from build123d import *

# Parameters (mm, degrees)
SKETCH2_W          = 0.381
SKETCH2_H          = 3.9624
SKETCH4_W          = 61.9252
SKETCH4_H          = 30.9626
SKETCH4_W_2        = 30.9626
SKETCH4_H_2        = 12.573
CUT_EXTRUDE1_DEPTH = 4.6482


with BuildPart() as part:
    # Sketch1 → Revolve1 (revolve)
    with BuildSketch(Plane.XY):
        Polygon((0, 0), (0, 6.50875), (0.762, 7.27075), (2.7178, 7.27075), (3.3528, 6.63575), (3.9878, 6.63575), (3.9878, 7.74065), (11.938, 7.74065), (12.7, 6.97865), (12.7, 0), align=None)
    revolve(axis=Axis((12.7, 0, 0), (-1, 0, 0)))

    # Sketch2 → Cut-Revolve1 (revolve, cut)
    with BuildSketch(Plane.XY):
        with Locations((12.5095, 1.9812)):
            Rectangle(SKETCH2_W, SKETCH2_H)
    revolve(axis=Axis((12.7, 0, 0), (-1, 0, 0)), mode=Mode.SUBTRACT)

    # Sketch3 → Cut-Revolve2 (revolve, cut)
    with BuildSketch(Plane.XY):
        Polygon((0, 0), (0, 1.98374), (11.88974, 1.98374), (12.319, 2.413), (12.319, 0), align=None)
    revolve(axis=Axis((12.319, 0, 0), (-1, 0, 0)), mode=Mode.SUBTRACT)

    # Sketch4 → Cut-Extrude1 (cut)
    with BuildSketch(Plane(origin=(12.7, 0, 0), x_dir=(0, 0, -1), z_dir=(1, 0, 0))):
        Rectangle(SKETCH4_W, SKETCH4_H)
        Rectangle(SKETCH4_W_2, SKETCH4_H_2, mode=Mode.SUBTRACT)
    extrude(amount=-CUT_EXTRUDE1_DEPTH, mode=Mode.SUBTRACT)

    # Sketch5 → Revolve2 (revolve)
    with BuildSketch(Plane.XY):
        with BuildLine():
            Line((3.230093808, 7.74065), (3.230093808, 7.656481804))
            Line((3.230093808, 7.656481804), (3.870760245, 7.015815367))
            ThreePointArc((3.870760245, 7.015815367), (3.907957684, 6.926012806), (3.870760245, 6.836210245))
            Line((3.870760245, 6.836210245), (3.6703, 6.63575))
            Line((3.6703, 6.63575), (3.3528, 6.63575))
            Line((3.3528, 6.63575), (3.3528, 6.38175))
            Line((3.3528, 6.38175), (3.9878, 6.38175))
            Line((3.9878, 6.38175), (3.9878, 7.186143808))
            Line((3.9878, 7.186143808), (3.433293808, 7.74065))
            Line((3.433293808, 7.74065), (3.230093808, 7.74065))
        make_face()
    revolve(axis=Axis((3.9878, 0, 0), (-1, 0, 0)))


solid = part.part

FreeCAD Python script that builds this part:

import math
import FreeCAD as App
import Part
import Sketcher
from FreeCAD import Vector
Q = App.Units.Quantity


def add_polygon(sketch, points):
    """Adds a closed chain of lines whose ends are joined by coincident constraints."""
    first, n = sketch.GeometryCount, len(points)
    for a, b in zip(points, points[1:] + points[:1]):
        sketch.addGeometry(Part.LineSegment(App.Vector(*a, 0), App.Vector(*b, 0)), False)
    for i in range(n):
        sketch.addConstraint(Sketcher.Constraint("Coincident", first + i, 2, first + (i + 1) % n, 1))

doc = App.newDocument("Part")
body = doc.addObject("PartDesign::Body", "Body")

sketch1 = doc.addObject("Sketcher::SketchObject", "Sketch")
body.addObject(sketch1)
sketch1.AttachmentSupport = (doc.XY_Plane, [""])
sketch1.MapMode = "FlatFace"
add_polygon(sketch1, [(0, 6.50875), (0, 0), (12.7, 0), (12.7, 6.97865), (11.938, 7.74065), (3.9878, 7.74065), (3.9878, 6.63575), (3.3528, 6.63575), (2.7178, 7.27075), (0.762, 7.27075)])
sketch1.addConstraint(Sketcher.Constraint("Vertical", 0))
sketch1.addConstraint(Sketcher.Constraint("Horizontal", 1))
sketch1.addConstraint(Sketcher.Constraint("Vertical", 2))
sketch1.addConstraint(Sketcher.Constraint("Horizontal", 4))
sketch1.addConstraint(Sketcher.Constraint("Vertical", 5))
sketch1.addConstraint(Sketcher.Constraint("Horizontal", 6))
sketch1.addConstraint(Sketcher.Constraint("Horizontal", 8))
sketch1.addConstraint(Sketcher.Constraint("Coincident", 0, 2, -1, 1))
sketch1.addConstraint(Sketcher.Constraint("Parallel", 3, 7))
sketch1.addConstraint(Sketcher.Constraint("Perpendicular", 7, 9))
sketch1.addConstraint(Sketcher.Constraint("Equal", 3, 9))
sketch1.addConstraint(Sketcher.Constraint("DistanceX", 1, 1, 1, 2, Q("0.5 in")))
sketch1.addConstraint(Sketcher.Constraint("Angle", 3, Q("135 deg")))
sketch1.addConstraint(Sketcher.Constraint("DistanceX", 4, 2, 4, 1, Q("0.313 in")))
sketch1.addConstraint(Sketcher.Constraint("DistanceX", 6, 2, 6, 1, Q("0.025 in")))
sketch1.addConstraint(Sketcher.Constraint("DistanceX", 8, 2, 8, 1, Q("0.077 in")))
sketch1.addConstraint(Sketcher.Constraint("DistanceX", -1, 1, 3, 2, Q("0.47 in")))
sketch1.addConstraint(Sketcher.Constraint("DistanceY", 5, 2, 5, 1, Q("0.0435 in")))
sketch1.addConstraint(Sketcher.Constraint("DistanceY", 0, 2, 0, 1, 6.50875))
revolution = doc.addObject("PartDesign::Revolution", "Revolution")
body.addObject(revolution)
revolution.Profile = sketch1
revolution.ReferenceAxis = (sketch1, ["H_Axis"])
revolution.Angle = 360

sketch2 = doc.addObject("Sketcher::SketchObject", "Sketch001")
body.addObject(sketch2)
sketch2.AttachmentSupport = (doc.XY_Plane, [""])
sketch2.MapMode = "FlatFace"
add_polygon(sketch2, [(12.319, 3.9624), (12.319, 0), (12.7, 0), (12.7, 3.9624)])
sketch2.addConstraint(Sketcher.Constraint("Vertical", 0))
sketch2.addConstraint(Sketcher.Constraint("Horizontal", 1))
sketch2.addConstraint(Sketcher.Constraint("Vertical", 2))
sketch2.addConstraint(Sketcher.Constraint("Horizontal", 3))
sketch2.addConstraint(Sketcher.Constraint("PointOnObject", 0, 2, -1))
sketch2.addConstraint(Sketcher.Constraint("DistanceX", -1, 1, 1, 2, Q("0.5 in")))
sketch2.addConstraint(Sketcher.Constraint("DistanceX", 1, 1, 1, 2, Q("0.015 in")))
sketch2.addConstraint(Sketcher.Constraint("DistanceY", 0, 2, 0, 1, Q("0.156 in")))
groove = doc.addObject("PartDesign::Groove", "Groove")
body.addObject(groove)
groove.Profile = sketch2
groove.ReferenceAxis = (sketch2, ["H_Axis"])
groove.Angle = 360

sketch3 = doc.addObject("Sketcher::SketchObject", "Sketch002")
body.addObject(sketch3)
sketch3.AttachmentSupport = (doc.XY_Plane, [""])
sketch3.MapMode = "FlatFace"
add_polygon(sketch3, [(0, 1.98374), (0, 0), (12.319, 0), (12.319, 2.413), (11.88974, 1.98374)])
sketch3.addConstraint(Sketcher.Constraint("Vertical", 0))
sketch3.addConstraint(Sketcher.Constraint("Horizontal", 1))
sketch3.addConstraint(Sketcher.Constraint("Vertical", 2))
sketch3.addConstraint(Sketcher.Constraint("Horizontal", 4))
sketch3.addConstraint(Sketcher.Constraint("Coincident", 0, 2, -1, 1))
sketch3.addConstraint(Sketcher.Constraint("Angle", 3, Q("-135 deg")))
sketch3.addConstraint(Sketcher.Constraint("DistanceX", 1, 1, 1, 2, Q("0.485 in")))
sketch3.addConstraint(Sketcher.Constraint("DistanceY", 2, 1, 2, 2, Q("0.095 in")))
sketch3.addConstraint(Sketcher.Constraint("DistanceX", 4, 2, 4, 1, Q("0.4681 in")))
groove2 = doc.addObject("PartDesign::Groove", "Groove001")
body.addObject(groove2)
groove2.Profile = sketch3
groove2.ReferenceAxis = (sketch3, ["H_Axis"])
groove2.Angle = 360

sketch4 = doc.addObject("Sketcher::SketchObject", "Sketch003")
body.addObject(sketch4)
sketch4.AttachmentSupport = (doc.YZ_Plane, [""])
sketch4.MapMode = "FlatFace"
sketch4.AttachmentOffset = App.Placement(Vector(0, 0, 0.5 * 25.4), App.Rotation())
add_polygon(sketch4, [(15.4813, 30.9626), (-15.4813, 30.9626), (-15.4813, -30.9626), (15.4813, -30.9626)])
add_polygon(sketch4, [(-6.2865, -15.4813), (-6.2865, 15.4813), (6.2865, 15.4813), (6.2865, -15.4813)])
sketch4.addConstraint(Sketcher.Constraint("Horizontal", 0))
sketch4.addConstraint(Sketcher.Constraint("Vertical", 1))
sketch4.addConstraint(Sketcher.Constraint("Horizontal", 2))
sketch4.addConstraint(Sketcher.Constraint("Vertical", 3))
sketch4.addConstraint(Sketcher.Constraint("Vertical", 4))
sketch4.addConstraint(Sketcher.Constraint("Horizontal", 5))
sketch4.addConstraint(Sketcher.Constraint("Vertical", 6))
sketch4.addConstraint(Sketcher.Constraint("Horizontal", 7))
sketch4.addConstraint(Sketcher.Constraint("Symmetric", 0, 2, 2, 2, -1, 1))
sketch4.addConstraint(Sketcher.Constraint("Symmetric", 4, 2, 6, 2, -1, 1))
sketch4.addConstraint(Sketcher.Constraint("Equal", 2, 4))
sketch4.addConstraint(Sketcher.Constraint("DistanceX", 0, 2, 0, 1, Q("1.219 in")))
sketch4.addConstraint(Sketcher.Constraint("DistanceX", 5, 1, 5, 2, Q("0.495 in")))
sketch4.addConstraint(Sketcher.Constraint("DistanceY", 1, 2, 1, 1, Q("2.438 in")))
pocket1 = doc.addObject("PartDesign::Pocket", "Pocket")
body.addObject(pocket1)
pocket1.Profile = sketch4
pocket1.Length = Q("0.183 in")

sketch5 = doc.addObject("Sketcher::SketchObject", "Sketch004")
body.addObject(sketch5)
sketch5.AttachmentSupport = (doc.XY_Plane, [""])
sketch5.MapMode = "FlatFace"
sketch5.addGeometry(Part.LineSegment(Vector(3.230094, 7.74065, 0), Vector(3.230094, 7.656482, 0)), False)
sketch5.addGeometry(Part.LineSegment(Vector(3.230094, 7.656482, 0), Vector(3.87076, 7.015815, 0)), False)
sketch5.addGeometry(Part.ArcOfCircle(Part.Circle(Vector(3.780958, 6.926013, 0), Vector(0, 0, 1), 0.127), math.radians(-45), math.radians(45)), False)
sketch5.addGeometry(Part.LineSegment(Vector(3.87076, 6.83621, 0), Vector(3.6703, 6.63575, 0)), False)
sketch5.addGeometry(Part.LineSegment(Vector(3.6703, 6.63575, 0), Vector(3.3528, 6.63575, 0)), False)
sketch5.addGeometry(Part.LineSegment(Vector(3.3528, 6.63575, 0), Vector(3.3528, 6.38175, 0)), False)
sketch5.addGeometry(Part.LineSegment(Vector(3.3528, 6.38175, 0), Vector(3.9878, 6.38175, 0)), False)
sketch5.addGeometry(Part.LineSegment(Vector(3.9878, 6.38175, 0), Vector(3.9878, 7.186144, 0)), False)
sketch5.addGeometry(Part.LineSegment(Vector(3.9878, 7.186144, 0), Vector(3.433294, 7.74065, 0)), False)
sketch5.addGeometry(Part.LineSegment(Vector(3.433294, 7.74065, 0), Vector(3.230094, 7.74065, 0)), False)
sketch5.addConstraint(Sketcher.Constraint("Coincident", 0, 2, 1, 1))
sketch5.addConstraint(Sketcher.Constraint("Tangent", 1, 2, 2, 2))
sketch5.addConstraint(Sketcher.Constraint("Tangent", 2, 1, 3, 1))
sketch5.addConstraint(Sketcher.Constraint("Coincident", 3, 2, 4, 1))
sketch5.addConstraint(Sketcher.Constraint("Coincident", 4, 2, 5, 1))
sketch5.addConstraint(Sketcher.Constraint("Coincident", 5, 2, 6, 1))
sketch5.addConstraint(Sketcher.Constraint("Coincident", 6, 2, 7, 1))
sketch5.addConstraint(Sketcher.Constraint("Coincident", 7, 2, 8, 1))
sketch5.addConstraint(Sketcher.Constraint("Coincident", 8, 2, 9, 1))
sketch5.addConstraint(Sketcher.Constraint("Coincident", 9, 2, 0, 1))
sketch5.addConstraint(Sketcher.Constraint("Vertical", 0))
sketch5.addConstraint(Sketcher.Constraint("Horizontal", 4))
sketch5.addConstraint(Sketcher.Constraint("Vertical", 5))
sketch5.addConstraint(Sketcher.Constraint("Horizontal", 6))
sketch5.addConstraint(Sketcher.Constraint("Vertical", 7))
sketch5.addConstraint(Sketcher.Constraint("Horizontal", 9))
sketch5.addConstraint(Sketcher.Constraint("Perpendicular", 1, 3))
sketch5.addConstraint(Sketcher.Constraint("Perpendicular", 3, 8))
sketch5.addConstraint(Sketcher.Constraint("Vertical", 1, 2, 2, 1))
sketch5.addConstraint(Sketcher.Constraint("Radius", 2, Q("0.005 in")))
sketch5.addConstraint(Sketcher.Constraint("DistanceY", 5, 2, 5, 1, Q("0.01 in")))
sketch5.addConstraint(Sketcher.Constraint("DistanceX", 6, 1, 6, 2, Q("0.025 in")))
sketch5.addConstraint(Sketcher.Constraint("DistanceX", 9, 2, 9, 1, Q("0.008 in")))
sketch5.addConstraint(Sketcher.Constraint("DistanceX", 4, 2, 4, 1, Q("0.0125 in")))
sketch5.addConstraint(Sketcher.Constraint("DistanceX", -1, 1, 4, 2, Q("0.132 in")))
sketch5.addConstraint(Sketcher.Constraint("DistanceY", 0, 2, 0, 1, 0.084168))
sketch5.addConstraint(Sketcher.Constraint("Distance", 1, 0.906039))
sketch5.addConstraint(Sketcher.Constraint("Distance", 8, 0.78419))
sketch5.addConstraint(Sketcher.Constraint("DistanceY", -1, 1, 0, 2, 7.656482))
revolution2 = doc.addObject("PartDesign::Revolution", "Revolution001")
body.addObject(revolution2)
revolution2.Profile = sketch5
revolution2.ReferenceAxis = (sketch5, ["H_Axis"])
revolution2.Angle = 360

doc.recompute()
